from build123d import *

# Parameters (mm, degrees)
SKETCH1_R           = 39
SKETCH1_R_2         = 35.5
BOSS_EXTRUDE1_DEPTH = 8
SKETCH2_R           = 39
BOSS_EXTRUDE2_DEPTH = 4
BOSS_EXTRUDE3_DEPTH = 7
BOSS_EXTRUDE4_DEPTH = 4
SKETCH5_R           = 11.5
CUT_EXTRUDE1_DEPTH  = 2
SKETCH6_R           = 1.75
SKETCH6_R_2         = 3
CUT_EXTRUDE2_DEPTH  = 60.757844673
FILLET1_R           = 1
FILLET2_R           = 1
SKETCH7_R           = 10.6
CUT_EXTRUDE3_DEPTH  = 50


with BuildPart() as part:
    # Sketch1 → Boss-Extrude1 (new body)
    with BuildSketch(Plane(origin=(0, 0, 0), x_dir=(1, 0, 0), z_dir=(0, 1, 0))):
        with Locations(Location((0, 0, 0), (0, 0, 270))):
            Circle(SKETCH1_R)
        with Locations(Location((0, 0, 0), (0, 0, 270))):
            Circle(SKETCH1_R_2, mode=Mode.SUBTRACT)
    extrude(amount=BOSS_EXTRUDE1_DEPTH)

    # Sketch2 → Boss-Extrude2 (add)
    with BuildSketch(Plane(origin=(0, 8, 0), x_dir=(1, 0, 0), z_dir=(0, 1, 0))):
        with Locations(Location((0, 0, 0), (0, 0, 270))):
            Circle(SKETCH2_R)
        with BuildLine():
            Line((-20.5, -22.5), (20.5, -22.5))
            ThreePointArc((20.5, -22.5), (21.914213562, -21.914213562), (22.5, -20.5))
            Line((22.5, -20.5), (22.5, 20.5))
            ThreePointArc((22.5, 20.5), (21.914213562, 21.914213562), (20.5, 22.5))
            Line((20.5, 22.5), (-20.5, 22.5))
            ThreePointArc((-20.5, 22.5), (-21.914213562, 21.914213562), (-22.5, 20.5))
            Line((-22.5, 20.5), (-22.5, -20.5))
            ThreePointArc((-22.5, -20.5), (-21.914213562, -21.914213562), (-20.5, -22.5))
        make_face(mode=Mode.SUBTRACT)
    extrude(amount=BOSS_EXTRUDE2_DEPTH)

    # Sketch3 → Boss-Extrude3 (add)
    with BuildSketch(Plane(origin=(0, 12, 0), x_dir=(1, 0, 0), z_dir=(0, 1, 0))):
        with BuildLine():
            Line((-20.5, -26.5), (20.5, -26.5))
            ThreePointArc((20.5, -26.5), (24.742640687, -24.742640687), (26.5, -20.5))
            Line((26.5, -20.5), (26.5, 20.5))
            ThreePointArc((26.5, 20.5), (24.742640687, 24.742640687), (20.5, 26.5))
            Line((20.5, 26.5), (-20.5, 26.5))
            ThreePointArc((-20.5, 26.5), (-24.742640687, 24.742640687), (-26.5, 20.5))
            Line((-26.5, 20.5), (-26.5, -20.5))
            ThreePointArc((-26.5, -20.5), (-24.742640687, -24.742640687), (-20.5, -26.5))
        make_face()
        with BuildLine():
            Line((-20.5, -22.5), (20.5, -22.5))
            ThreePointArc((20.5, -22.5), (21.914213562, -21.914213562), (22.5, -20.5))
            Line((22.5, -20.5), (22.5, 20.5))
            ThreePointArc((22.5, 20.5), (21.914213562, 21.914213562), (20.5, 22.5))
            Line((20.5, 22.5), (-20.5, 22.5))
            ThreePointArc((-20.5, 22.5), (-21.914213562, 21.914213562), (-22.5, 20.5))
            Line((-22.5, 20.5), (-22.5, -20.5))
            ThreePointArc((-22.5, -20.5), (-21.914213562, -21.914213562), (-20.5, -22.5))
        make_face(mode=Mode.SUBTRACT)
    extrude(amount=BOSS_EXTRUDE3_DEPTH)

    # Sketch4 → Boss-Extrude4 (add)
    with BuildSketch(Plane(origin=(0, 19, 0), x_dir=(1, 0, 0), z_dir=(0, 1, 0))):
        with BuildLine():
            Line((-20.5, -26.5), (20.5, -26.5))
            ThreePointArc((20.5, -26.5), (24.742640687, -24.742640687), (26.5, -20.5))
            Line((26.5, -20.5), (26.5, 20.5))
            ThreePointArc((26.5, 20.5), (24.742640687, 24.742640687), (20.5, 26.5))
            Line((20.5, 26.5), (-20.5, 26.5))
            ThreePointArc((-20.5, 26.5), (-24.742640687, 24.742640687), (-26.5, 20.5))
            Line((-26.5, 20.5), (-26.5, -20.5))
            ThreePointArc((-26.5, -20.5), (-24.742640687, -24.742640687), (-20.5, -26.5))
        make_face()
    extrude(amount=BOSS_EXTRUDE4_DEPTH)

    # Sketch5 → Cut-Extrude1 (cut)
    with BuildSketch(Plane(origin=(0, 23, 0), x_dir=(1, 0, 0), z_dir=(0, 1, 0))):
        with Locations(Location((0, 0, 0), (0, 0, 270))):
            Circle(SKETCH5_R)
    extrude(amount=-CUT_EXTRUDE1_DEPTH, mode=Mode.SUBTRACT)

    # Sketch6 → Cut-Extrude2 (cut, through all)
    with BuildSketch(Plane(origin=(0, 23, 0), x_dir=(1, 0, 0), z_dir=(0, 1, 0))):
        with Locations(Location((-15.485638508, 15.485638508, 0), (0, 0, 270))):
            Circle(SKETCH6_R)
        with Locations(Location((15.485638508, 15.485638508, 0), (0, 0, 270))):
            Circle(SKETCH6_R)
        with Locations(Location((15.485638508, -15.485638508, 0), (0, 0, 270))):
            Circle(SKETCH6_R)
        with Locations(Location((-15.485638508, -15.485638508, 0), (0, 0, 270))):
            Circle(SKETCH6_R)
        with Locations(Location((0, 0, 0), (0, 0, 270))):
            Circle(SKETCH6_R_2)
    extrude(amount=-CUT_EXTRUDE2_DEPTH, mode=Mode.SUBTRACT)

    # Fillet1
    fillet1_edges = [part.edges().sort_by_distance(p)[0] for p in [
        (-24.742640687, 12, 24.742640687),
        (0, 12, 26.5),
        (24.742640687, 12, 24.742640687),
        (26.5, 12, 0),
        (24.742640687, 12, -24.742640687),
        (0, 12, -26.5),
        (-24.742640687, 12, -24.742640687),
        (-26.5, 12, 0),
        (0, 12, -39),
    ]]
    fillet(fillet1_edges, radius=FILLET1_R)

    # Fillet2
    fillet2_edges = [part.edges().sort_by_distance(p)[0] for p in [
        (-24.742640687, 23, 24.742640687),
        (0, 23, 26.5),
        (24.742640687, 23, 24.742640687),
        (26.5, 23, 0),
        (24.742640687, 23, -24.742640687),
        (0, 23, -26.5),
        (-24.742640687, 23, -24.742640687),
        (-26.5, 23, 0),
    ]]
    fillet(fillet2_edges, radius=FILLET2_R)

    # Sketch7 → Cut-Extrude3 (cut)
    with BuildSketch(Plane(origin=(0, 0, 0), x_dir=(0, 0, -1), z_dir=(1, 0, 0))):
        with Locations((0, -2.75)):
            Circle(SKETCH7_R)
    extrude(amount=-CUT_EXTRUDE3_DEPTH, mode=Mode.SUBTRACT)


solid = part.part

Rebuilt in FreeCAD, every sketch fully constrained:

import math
import FreeCAD as App
import Part
import Sketcher

V = App.Vector
Q = App.Units.Quantity


def edges_at(feature, points):
    """Names of the edges that pass closest to the given points."""
    edges = feature.Shape.Edges
    near = lambda p: min(range(len(edges)), key=lambda i: edges[i].distToShape(Part.Vertex(*p))[0])
    return sorted({f"Edge{near(p) + 1}" for p in points})

doc = App.newDocument("Part")
body = doc.addObject("PartDesign::Body", "Body")

# Sketch on XZ plane
sketch1 = body.newObject("Sketcher::SketchObject", "Sketch")
sketch1.AttachmentSupport = (doc.getObject("XZ_Plane"), [""])
sketch1.MapMode = "FlatFace"
sketch1.addGeometry(Part.Circle(V(0, 0, 0), V(0, 0, 1), 39), False)
sketch1.addGeometry(Part.Circle(V(0, 0, 0), V(0, 0, 1), 36), False)
sketch1.addConstraint(Sketcher.Constraint("Coincident", 0, 3, -1, 1))
sketch1.addConstraint(Sketcher.Constraint("Coincident", 1, 3, -1, 1))
sketch1.addConstraint(Sketcher.Constraint("Diameter", 0, Q("78 mm")))
sketch1.addConstraint(Sketcher.Constraint("Diameter", 1, Q("71 mm")))
pad1 = body.newObject("PartDesign::Pad", "Pad")
pad1.Profile = sketch1
pad1.Length = 8
pad1.Reversed = True

# Sketch on XZ plane
sketch2 = body.newObject("Sketcher::SketchObject", "Sketch001")
sketch2.AttachmentSupport = (doc.getObject("XZ_Plane"), [""])
sketch2.MapMode = "FlatFace"
sketch2.AttachmentOffset = App.Placement(V(0, 0, -8), App.Rotation())
sketch2.addGeometry(Part.Circle(V(0, 0, 0), V(0, 0, 1), 39), False)
sketch2.addGeometry(Part.LineSegment(V(20.5, 22.5, 0), V(-20.5, 22.5, 0)), False)
sketch2.addGeometry(Part.ArcOfCircle(Part.Circle(V(-20.5, 20.5, 0), V(0, 0, 1), 2), math.radians(90), math.radians(180)), False)
sketch2.addGeometry(Part.LineSegment(V(-22.5, 20.5, 0), V(-22.5, -20.5, 0)), False)
sketch2.addGeometry(Part.ArcOfCircle(Part.Circle(V(-20.5, -20.5, 0), V(0, 0, 1), 2), math.radians(-180), math.radians(-90)), False)
sketch2.addGeometry(Part.LineSegment(V(-20.5, -22.5, 0), V(20.5, -22.5, 0)), False)
sketch2.addGeometry(Part.ArcOfCircle(Part.Circle(V(20.5, -20.5, 0), V(0, 0, 1), 2), math.radians(-90), math.radians(0)), False)
sketch2.addGeometry(Part.LineSegment(V(22.5, -20.5, 0), V(22.5, 20.5, 0)), False)
sketch2.addGeometry(Part.ArcOfCircle(Part.Circle(V(20.5, 20.5, 0), V(0, 0, 1), 2), math.radians(0), math.radians(90)), False)
sketch2.addConstraint(Sketcher.Constraint("Tangent", 1, 2, 2, 1))
sketch2.addConstraint(Sketcher.Constraint("Tangent", 2, 2, 3, 1))
sketch2.addConstraint(Sketcher.Constraint("Tangent", 3, 2, 4, 1))
sketch2.addConstraint(Sketcher.Constraint("Tangent", 4, 2, 5, 1))
sketch2.addConstraint(Sketcher.Constraint("Tangent", 5, 2, 6, 1))
sketch2.addConstraint(Sketcher.Constraint("Tangent", 6, 2, 7, 1))
sketch2.addConstraint(Sketcher.Constraint("Tangent", 7, 2, 8, 1))
sketch2.addConstraint(Sketcher.Constraint("Tangent", 8, 2, 1, 1))
sketch2.addConstraint(Sketcher.Constraint("Horizontal", 1))
sketch2.addConstraint(Sketcher.Constraint("Vertical", 3))
sketch2.addConstraint(Sketcher.Constraint("Horizontal", 5))
sketch2.addConstraint(Sketcher.Constraint("Vertical", 7))
sketch2.addConstraint(Sketcher.Constraint("Coincident", 0, 3, -1, 1))
sketch2.addConstraint(Sketcher.Constraint("Equal", 2, 4))
sketch2.addConstraint(Sketcher.Constraint("Equal", 4, 6))
sketch2.addConstraint(Sketcher.Constraint("Equal", 6, 8))
sketch2.addConstraint(Sketcher.Constraint("Symmetric", 2, 3, 6, 3, -1, 1))
sketch2.addConstraint(Sketcher.Constraint("Equal", 5, 3))
sketch2.addConstraint(Sketcher.Constraint("Diameter", 0, Q("78 mm")))
sketch2.addConstraint(Sketcher.Constraint("Radius", 2, Q("2 mm")))
sketch2.addConstraint(Sketcher.Constraint("DistanceX", 1, 2, 1, 1, Q("41 mm")))
pad2 = body.newObject("PartDesign::Pad", "Pad001")
pad2.Profile = sketch2
pad2.Length = 4
pad2.Reversed = True

# Sketch on XZ plane
sketch3 = body.newObject("Sketcher::SketchObject", "Sketch002")
sketch3.AttachmentSupport = (doc.getObject("XZ_Plane"), [""])
sketch3.MapMode = "FlatFace"
sketch3.AttachmentOffset = App.Placement(V(0, 0, -12), App.Rotation())
sketch3.addGeometry(Part.LineSegment(V(-20.5, 26.5, 0), V(20.5, 26.5, 0)), False)
sketch3.addGeometry(Part.ArcOfCircle(Part.Circle(V(20.5, 20.5, 0), V(0, 0, 1), 6), math.radians(0), math.radians(90)), False)
sketch3.addGeometry(Part.LineSegment(V(26.5, 20.5, 0), V(26.5, -20.5, 0)), False)
sketch3.addGeometry(Part.ArcOfCircle(Part.Circle(V(20.5, -20.5, 0), V(0, 0, 1), 6), math.radians(-90), math.radians(0)), False)
sketch3.addGeometry(Part.LineSegment(V(20.5, -26.5, 0), V(-20.5, -26.5, 0)), False)
sketch3.addGeometry(Part.ArcOfCircle(Part.Circle(V(-20.5, -20.5, 0), V(0, 0, 1), 6), math.radians(180), math.radians(270)), False)
sketch3.addGeometry(Part.LineSegment(V(-26.5, -20.5, 0), V(-26.5, 20.5, 0)), False)
sketch3.addGeometry(Part.ArcOfCircle(Part.Circle(V(-20.5, 20.5, 0), V(0, 0, 1), 6), math.radians(90), math.radians(180)), False)
sketch3.addGeometry(Part.LineSegment(V(20.5, 22.5, 0), V(-20.5, 22.5, 0)), False)
sketch3.addGeometry(Part.ArcOfCircle(Part.Circle(V(-20.5, 20.5, 0), V(0, 0, 1), 2), math.radians(90), math.radians(180)), False)
sketch3.addGeometry(Part.LineSegment(V(-22.5, 20.5, 0), V(-22.5, -20.5, 0)), False)
sketch3.addGeometry(Part.ArcOfCircle(Part.Circle(V(-20.5, -20.5, 0), V(0, 0, 1), 2), math.radians(-180), math.radians(-90)), False)
sketch3.addGeometry(Part.LineSegment(V(-20.5, -22.5, 0), V(20.5, -22.5, 0)), False)
sketch3.addGeometry(Part.ArcOfCircle(Part.Circle(V(20.5, -20.5, 0), V(0, 0, 1), 2), math.radians(-90), math.radians(0)), False)
sketch3.addGeometry(Part.LineSegment(V(22.5, -20.5, 0), V(22.5, 20.5, 0)), False)
sketch3.addGeometry(Part.ArcOfCircle(Part.Circle(V(20.5, 20.5, 0), V(0, 0, 1), 2), math.radians(0), math.radians(90)), False)
sketch3.addConstraint(Sketcher.Constraint("Tangent", 0, 2, 1, 2))
sketch3.addConstraint(Sketcher.Constraint("Tangent", 1, 1, 2, 1))
sketch3.addConstraint(Sketcher.Constraint("Tangent", 2, 2, 3, 2))
sketch3.addConstraint(Sketcher.Constraint("Tangent", 3, 1, 4, 1))
sketch3.addConstraint(Sketcher.Constraint("Tangent", 4, 2, 5, 2))
sketch3.addConstraint(Sketcher.Constraint("Tangent", 5, 1, 6, 1))
sketch3.addConstraint(Sketcher.Constraint("Tangent", 6, 2, 7, 2))
sketch3.addConstraint(Sketcher.Constraint("Tangent", 7, 1, 0, 1))
sketch3.addConstraint(Sketcher.Constraint("Tangent", 8, 2, 9, 1))
sketch3.addConstraint(Sketcher.Constraint("Tangent", 9, 2, 10, 1))
sketch3.addConstraint(Sketcher.Constraint("Tangent", 10, 2, 11, 1))
sketch3.addConstraint(Sketcher.Constraint("Tangent", 11, 2, 12, 1))
sketch3.addConstraint(Sketcher.Constraint("Tangent", 12, 2, 13, 1))
sketch3.addConstraint(Sketcher.Constraint("Tangent", 13, 2, 14, 1))
sketch3.addConstraint(Sketcher.Constraint("Tangent", 14, 2, 15, 1))
sketch3.addConstraint(Sketcher.Constraint("Tangent", 15, 2, 8, 1))
sketch3.addConstraint(Sketcher.Constraint("Horizontal", 0))
sketch3.addConstraint(Sketcher.Constraint("Vertical", 2))
sketch3.addConstraint(Sketcher.Constraint("Horizontal", 4))
sketch3.addConstraint(Sketcher.Constraint("Vertical", 6))
sketch3.addConstraint(Sketcher.Constraint("Horizontal", 8))
sketch3.addConstraint(Sketcher.Constraint("Vertical", 10))
sketch3.addConstraint(Sketcher.Constraint("Horizontal", 12))
sketch3.addConstraint(Sketcher.Constraint("Vertical", 14))
sketch3.addConstraint(Sketcher.Constraint("Coincident", 9, 3, 7, 3))
sketch3.addConstraint(Sketcher.Constraint("Coincident", 11, 3, 5, 3))
sketch3.addConstraint(Sketcher.Constraint("Coincident", 13, 3, 3, 3))
sketch3.addConstraint(Sketcher.Constraint("Equal", 1, 3))
sketch3.addConstraint(Sketcher.Constraint("Equal", 3, 5))
sketch3.addConstraint(Sketcher.Constraint("Equal", 5, 7))
sketch3.addConstraint(Sketcher.Constraint("Equal", 13, 15))
sketch3.addConstraint(Sketcher.Constraint("Symmetric", 1, 3, 5, 3, -1, 1))
sketch3.addConstraint(Sketcher.Constraint("Equal", 12, 2))
sketch3.addConstraint(Sketcher.Constraint("Radius", 1, Q("6 mm")))
sketch3.addConstraint(Sketcher.Constraint("Radius", 9, Q("2 mm")))
sketch3.addConstraint(Sketcher.Constraint("DistanceX", 0, 1, 0, 2, Q("41 mm")))
pad3 = body.newObject("PartDesign::Pad", "Pad002")
pad3.Profile = sketch3
pad3.Length = 7
pad3.Reversed = True

# Sketch on XZ plane
sketch4 = body.newObject("Sketcher::SketchObject", "Sketch003")
sketch4.AttachmentSupport = (doc.getObject("XZ_Plane"), [""])
sketch4.MapMode = "FlatFace"
sketch4.AttachmentOffset = App.Placement(V(0, 0, -19), App.Rotation())
sketch4.addGeometry(Part.LineSegment(V(-20, 26, 0), V(20, 26, 0)), False)
sketch4.addGeometry(Part.ArcOfCircle(Part.Circle(V(20, 20, 0), V(0, 0, 1), 6), math.radians(0), math.radians(90)), False)
sketch4.addGeometry(Part.LineSegment(V(26, 20, 0), V(26, -20, 0)), False)
sketch4.addGeometry(Part.ArcOfCircle(Part.Circle(V(20, -20, 0), V(0, 0, 1), 6), math.radians(-90), math.radians(0)), False)
sketch4.addGeometry(Part.LineSegment(V(20, -26, 0), V(-20, -26, 0)), False)
sketch4.addGeometry(Part.ArcOfCircle(Part.Circle(V(-20, -20, 0), V(0, 0, 1), 6), math.radians(180), math.radians(270)), False)
sketch4.addGeometry(Part.LineSegment(V(-26, -20, 0), V(-26, 20, 0)), False)
sketch4.addGeometry(Part.ArcOfCircle(Part.Circle(V(-20, 20, 0), V(0, 0, 1), 6), math.radians(90), math.radians(180)), False)
sketch4.addConstraint(Sketcher.Constraint("Tangent", 0, 2, 1, 2))
sketch4.addConstraint(Sketcher.Constraint("Tangent", 1, 1, 2, 1))
sketch4.addConstraint(Sketcher.Constraint("Tangent", 2, 2, 3, 2))
sketch4.addConstraint(Sketcher.Constraint("Tangent", 3, 1, 4, 1))
sketch4.addConstraint(Sketcher.Constraint("Tangent", 4, 2, 5, 2))
sketch4.addConstraint(Sketcher.Constraint("Tangent", 5, 1, 6, 1))
sketch4.addConstraint(Sketcher.Constraint("Tangent", 6, 2, 7, 2))
sketch4.addConstraint(Sketcher.Constraint("Tangent", 7, 1, 0, 1))
sketch4.addConstraint(Sketcher.Constraint("Horizontal", 0))
sketch4.addConstraint(Sketcher.Constraint("Vertical", 2))
sketch4.addConstraint(Sketcher.Constraint("Horizontal", 4))
sketch4.addConstraint(Sketcher.Constraint("Vertical", 6))
sketch4.addConstraint(Sketcher.Constraint("Equal", 1, 3))
sketch4.addConstraint(Sketcher.Constraint("Equal", 3, 5))
sketch4.addConstraint(Sketcher.Constraint("Equal", 5, 7))
sketch4.addConstraint(Sketcher.Constraint("Symmetric", 1, 3, 5, 3, -1, 1))
sketch4.addConstraint(Sketcher.Constraint("Equal", 4, 2))
sketch4.addConstraint(Sketcher.Constraint("Radius", 1, Q("6 mm")))
sketch4.addConstraint(Sketcher.Constraint("DistanceX", 0, 1, 0, 2, Q("41 mm")))
pad4 = body.newObject("PartDesign::Pad", "Pad003")
pad4.Profile = sketch4
pad4.Length = 4
pad4.Reversed = True

# Sketch on XZ plane
sketch5 = body.newObject("Sketcher::SketchObject", "Sketch004")
sketch5.AttachmentSupport = (doc.getObject("XZ_Plane"), [""])
sketch5.MapMode = "FlatFace"
sketch5.AttachmentOffset = App.Placement(V(0, 0, -23), App.Rotation())
sketch5.addGeometry(Part.Circle(V(0, 0, 0), V(0, 0, 1), 12), False)
sketch5.addConstraint(Sketcher.Constraint("Coincident", 0, 3, -1, 1))
sketch5.addConstraint(Sketcher.Constraint("Diameter", 0, Q("23 mm")))
pocket1 = body.newObject("PartDesign::Pocket", "Pocket")
pocket1.Profile = sketch5
pocket1.Length = 2
pocket1.Reversed = True

# Sketch on XZ plane
sketch6 = body.newObject("Sketcher::SketchObject", "Sketch005")
sketch6.AttachmentSupport = (doc.getObject("XZ_Plane"), [""])
sketch6.MapMode = "FlatFace"
sketch6.AttachmentOffset = App.Placement(V(0, 0, -23), App.Rotation())
sketch6.addGeometry(Part.Circle(V(-15.5, -15.5, 0), V(0, 0, 1), 1.8), False)
sketch6.addGeometry(Part.Circle(V(15.5, -15.5, 0), V(0, 0, 1), 1.8), False)
sketch6.addGeometry(Part.Circle(V(15.5, 15.5, 0), V(0, 0, 1), 1.8), False)
sketch6.addGeometry(Part.Circle(V(-15.5, 15.5, 0), V(0, 0, 1), 1.8), False)
sketch6.addGeometry(Part.Circle(V(0, 0, 0), V(0, 0, 1), 3), False)
sketch6.addConstraint(Sketcher.Constraint("Coincident", 4, 3, -1, 1))
sketch6.addConstraint(Sketcher.Constraint("Equal", 0, 1))
sketch6.addConstraint(Sketcher.Constraint("Equal", 1, 2))
sketch6.addConstraint(Sketcher.Constraint("Equal", 2, 3))
sketch6.addConstraint(Sketcher.Constraint("Symmetric", 0, 3, 2, 3, -1, 1))
sketch6.addConstraint(Sketcher.Constraint("Symmetric", 1, 3, 3, 3, -1, 1))
sketch6.addConstraint(Sketcher.Constraint("Symmetric", 0, 3, 1, 3, -2))
sketch6.addConstraint(Sketcher.Constraint("Diameter", 4, Q("6 mm")))
sketch6.addConstraint(Sketcher.Constraint("Diameter", 0, Q("3.5 mm")))
sketch6.addConstraint(Sketcher.Constraint("DistanceX", 0, 3, -1, 1, Q("15.485639 mm")))
sketch6.addConstraint(Sketcher.Constraint("DistanceY", 0, 3, -1, 1, Q("15.485639 mm")))
pocket2 = body.newObject("PartDesign::Pocket", "Pocket001")
pocket2.Profile = sketch6
pocket2.Type = "ThroughAll"
pocket2.Reversed = True
doc.recompute()

fillet = body.newObject("PartDesign::Fillet", "Fillet")
fillet.Base = (pocket2, edges_at(pocket2, [
    (-24.743, 12, 24.743),
    (0, 12, 26.5),
    (24.743, 12, 24.743),
    (26.5, 12, 0),
    (24.743, 12, -24.743),
    (0, 12, -26.5),
    (-24.743, 12, -24.743),
    (-26.5, 12, 0),
    (0, 12, -39),
]))
fillet.Radius = 1
doc.recompute()

fillet2 = body.newObject("PartDesign::Fillet", "Fillet001")
fillet2.Base = (fillet, edges_at(fillet, [
    (-24.743, 23, 24.743),
    (0, 23, 26.5),
    (24.743, 23, 24.743),
    (26.5, 23, 0),
    (24.743, 23, -24.743),
    (0, 23, -26.5),
    (-24.743, 23, -24.743),
    (-26.5, 23, 0),
]))
fillet2.Radius = 1

# Sketch on YZ plane
sketch7 = body.newObject("Sketcher::SketchObject", "Sketch006")
sketch7.AttachmentSupport = (doc.getObject("YZ_Plane"), [""])
sketch7.MapMode = "FlatFace"
sketch7.addGeometry(Part.Circle(V(-3, 0, 0), V(0, 0, 1), 11), False)
sketch7.addConstraint(Sketcher.Constraint("PointOnObject", 0, 3, -1))
sketch7.addConstraint(Sketcher.Constraint("Diameter", 0, Q("21.2 mm")))
sketch7.addConstraint(Sketcher.Constraint("DistanceX", 0, 3, -1, 1, Q("2.75 mm")))
pocket3 = body.newObject("PartDesign::Pocket", "Pocket002")
pocket3.Profile = sketch7
pocket3.Length = 50

doc.recompute()
